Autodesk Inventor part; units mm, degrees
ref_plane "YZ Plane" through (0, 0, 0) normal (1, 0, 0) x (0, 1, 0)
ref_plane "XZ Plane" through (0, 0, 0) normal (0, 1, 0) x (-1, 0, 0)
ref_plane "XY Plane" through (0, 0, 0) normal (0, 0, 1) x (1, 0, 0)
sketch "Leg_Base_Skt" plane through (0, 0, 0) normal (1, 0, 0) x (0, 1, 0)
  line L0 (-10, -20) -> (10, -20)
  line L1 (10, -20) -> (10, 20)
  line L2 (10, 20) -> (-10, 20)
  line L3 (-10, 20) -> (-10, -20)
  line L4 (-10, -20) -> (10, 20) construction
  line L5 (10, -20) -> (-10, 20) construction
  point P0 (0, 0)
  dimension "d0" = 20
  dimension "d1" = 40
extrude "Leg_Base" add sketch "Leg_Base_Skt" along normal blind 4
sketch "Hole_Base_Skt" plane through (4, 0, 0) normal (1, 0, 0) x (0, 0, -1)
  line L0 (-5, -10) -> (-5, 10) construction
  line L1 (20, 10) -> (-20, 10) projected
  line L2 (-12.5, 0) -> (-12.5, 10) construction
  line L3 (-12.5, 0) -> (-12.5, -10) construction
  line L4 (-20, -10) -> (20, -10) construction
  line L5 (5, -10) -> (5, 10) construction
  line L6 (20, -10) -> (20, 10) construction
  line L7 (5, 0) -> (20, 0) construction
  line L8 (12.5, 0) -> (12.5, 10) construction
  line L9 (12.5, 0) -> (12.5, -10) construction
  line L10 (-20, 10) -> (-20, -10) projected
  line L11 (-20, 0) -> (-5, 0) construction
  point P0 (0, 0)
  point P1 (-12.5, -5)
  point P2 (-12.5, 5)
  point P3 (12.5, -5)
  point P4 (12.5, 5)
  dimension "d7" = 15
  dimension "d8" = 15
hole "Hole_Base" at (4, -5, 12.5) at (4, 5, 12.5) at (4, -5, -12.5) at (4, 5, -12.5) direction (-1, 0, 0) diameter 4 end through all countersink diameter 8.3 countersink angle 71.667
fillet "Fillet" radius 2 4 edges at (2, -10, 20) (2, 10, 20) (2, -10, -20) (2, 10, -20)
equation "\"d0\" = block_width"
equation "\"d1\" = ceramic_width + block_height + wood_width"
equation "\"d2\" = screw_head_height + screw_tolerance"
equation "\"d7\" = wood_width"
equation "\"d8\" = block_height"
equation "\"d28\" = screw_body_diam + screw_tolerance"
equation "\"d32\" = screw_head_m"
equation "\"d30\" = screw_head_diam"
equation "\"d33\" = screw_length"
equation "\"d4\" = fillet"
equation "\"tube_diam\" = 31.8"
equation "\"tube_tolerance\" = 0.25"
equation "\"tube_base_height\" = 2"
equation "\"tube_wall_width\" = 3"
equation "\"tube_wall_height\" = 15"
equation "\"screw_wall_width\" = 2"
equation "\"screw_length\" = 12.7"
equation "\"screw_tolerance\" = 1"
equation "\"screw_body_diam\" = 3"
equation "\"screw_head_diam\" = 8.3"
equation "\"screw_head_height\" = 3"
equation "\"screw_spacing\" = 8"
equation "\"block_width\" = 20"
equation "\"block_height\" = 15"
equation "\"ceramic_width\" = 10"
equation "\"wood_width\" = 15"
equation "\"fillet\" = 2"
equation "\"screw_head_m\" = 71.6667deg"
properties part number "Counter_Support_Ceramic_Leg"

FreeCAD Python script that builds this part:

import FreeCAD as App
import Part
import Sketcher
Q = App.Units.Quantity


def edges_at(feature, points):
    """Names of the edges that pass closest to the given points."""
    edges = feature.Shape.Edges
    near = lambda p: min(range(len(edges)), key=lambda i: edges[i].distToShape(Part.Vertex(*p))[0])
    return sorted({f"Edge{near(p) + 1}" for p in points})

doc = App.newDocument("Part")
body = doc.addObject("PartDesign::Body", "Body")

# Sketch on YZ plane
sketch1 = body.newObject("Sketcher::SketchObject", "Sketch")
sketch1.AttachmentSupport = (doc.getObject("YZ_Plane"), [""])
sketch1.MapMode = "FlatFace"
sketch1.addGeometry([
    Part.LineSegment(App.Vector(-10, 20, 0), App.Vector(-10, -20, 0)),
    Part.LineSegment(App.Vector(-10, -20, 0), App.Vector(10, -20, 0)),
    Part.LineSegment(App.Vector(10, -20, 0), App.Vector(10, 20, 0)),
    Part.LineSegment(App.Vector(10, 20, 0), App.Vector(-10, 20, 0)),
], False)
sketch1.addConstraint([
    Sketcher.Constraint("Coincident", 0, 2, 1, 1),
    Sketcher.Constraint("Coincident", 1, 2, 2, 1),
    Sketcher.Constraint("Coincident", 2, 2, 3, 1),
    Sketcher.Constraint("Coincident", 3, 2, 0, 1),
    Sketcher.Constraint("Vertical", 0),
    Sketcher.Constraint("Horizontal", 1),
    Sketcher.Constraint("Vertical", 2),
    Sketcher.Constraint("Horizontal", 3),
    Sketcher.Constraint("Symmetric", 0, 2, 2, 2, -1, 1),
    Sketcher.Constraint("DistanceX", 1, 1, 1, 2, Q("20 mm")),
    Sketcher.Constraint("DistanceY", 0, 2, 0, 1, Q("40 mm")),
])
pad1 = body.newObject("PartDesign::Pad", "Pad")
pad1.Profile = sketch1
pad1.Length = 4

# Sketch on YZ plane
sketch2 = body.newObject("Sketcher::SketchObject", "Sketch001")
sketch2.AttachmentSupport = (doc.getObject("YZ_Plane"), [""])
sketch2.MapMode = "FlatFace"
sketch2.AttachmentOffset = App.Placement(App.Vector(0, 0, 4), App.Rotation())
sketch2.addGeometry([
    Part.Circle(App.Vector(-5, 12.5, 0), App.Vector(0, 0, 1), 2),
    Part.Circle(App.Vector(5, 12.5, 0), App.Vector(0, 0, 1), 2),
    Part.Circle(App.Vector(-5, -12.5, 0), App.Vector(0, 0, 1), 2),
    Part.Circle(App.Vector(5, -12.5, 0), App.Vector(0, 0, 1), 2),
], False)
sketch2.addConstraint([
    Sketcher.Constraint("Equal", 0, 1),
    Sketcher.Constraint("Equal", 1, 2),
    Sketcher.Constraint("Equal", 2, 3),
    Sketcher.Constraint("Symmetric", 1, 3, 2, 3, -1, 1),
    Sketcher.Constraint("Symmetric", 0, 3, 3, 3, -1, 1),
    Sketcher.Constraint("Symmetric", 0, 3, 1, 3, -2),
    Sketcher.Constraint("Diameter", 0, Q("4 mm")),
    Sketcher.Constraint("DistanceX", 0, 3, -1, 1, Q("5 mm")),
    Sketcher.Constraint("DistanceY", 2, 3, 0, 3, Q("25 mm")),
])
doc.recompute()
hole = body.newObject("PartDesign::Hole", "Hole")
hole.Profile = sketch2
hole.ThreadType = "None"
hole.Diameter = 4
hole.DepthType = "ThroughAll"
hole.HoleCutType = "Countersink"
hole.HoleCutDiameter = 8.3
hole.HoleCutCountersinkAngle = 71.667
doc.recompute()

fillet = body.newObject("PartDesign::Fillet", "Fillet")
fillet.Base = (hole, edges_at(hole, [
    (2, -10, 20),
    (2, 10, 20),
    (2, -10, -20),
    (2, 10, -20),
]))
fillet.Radius = 2

doc.recompute()
